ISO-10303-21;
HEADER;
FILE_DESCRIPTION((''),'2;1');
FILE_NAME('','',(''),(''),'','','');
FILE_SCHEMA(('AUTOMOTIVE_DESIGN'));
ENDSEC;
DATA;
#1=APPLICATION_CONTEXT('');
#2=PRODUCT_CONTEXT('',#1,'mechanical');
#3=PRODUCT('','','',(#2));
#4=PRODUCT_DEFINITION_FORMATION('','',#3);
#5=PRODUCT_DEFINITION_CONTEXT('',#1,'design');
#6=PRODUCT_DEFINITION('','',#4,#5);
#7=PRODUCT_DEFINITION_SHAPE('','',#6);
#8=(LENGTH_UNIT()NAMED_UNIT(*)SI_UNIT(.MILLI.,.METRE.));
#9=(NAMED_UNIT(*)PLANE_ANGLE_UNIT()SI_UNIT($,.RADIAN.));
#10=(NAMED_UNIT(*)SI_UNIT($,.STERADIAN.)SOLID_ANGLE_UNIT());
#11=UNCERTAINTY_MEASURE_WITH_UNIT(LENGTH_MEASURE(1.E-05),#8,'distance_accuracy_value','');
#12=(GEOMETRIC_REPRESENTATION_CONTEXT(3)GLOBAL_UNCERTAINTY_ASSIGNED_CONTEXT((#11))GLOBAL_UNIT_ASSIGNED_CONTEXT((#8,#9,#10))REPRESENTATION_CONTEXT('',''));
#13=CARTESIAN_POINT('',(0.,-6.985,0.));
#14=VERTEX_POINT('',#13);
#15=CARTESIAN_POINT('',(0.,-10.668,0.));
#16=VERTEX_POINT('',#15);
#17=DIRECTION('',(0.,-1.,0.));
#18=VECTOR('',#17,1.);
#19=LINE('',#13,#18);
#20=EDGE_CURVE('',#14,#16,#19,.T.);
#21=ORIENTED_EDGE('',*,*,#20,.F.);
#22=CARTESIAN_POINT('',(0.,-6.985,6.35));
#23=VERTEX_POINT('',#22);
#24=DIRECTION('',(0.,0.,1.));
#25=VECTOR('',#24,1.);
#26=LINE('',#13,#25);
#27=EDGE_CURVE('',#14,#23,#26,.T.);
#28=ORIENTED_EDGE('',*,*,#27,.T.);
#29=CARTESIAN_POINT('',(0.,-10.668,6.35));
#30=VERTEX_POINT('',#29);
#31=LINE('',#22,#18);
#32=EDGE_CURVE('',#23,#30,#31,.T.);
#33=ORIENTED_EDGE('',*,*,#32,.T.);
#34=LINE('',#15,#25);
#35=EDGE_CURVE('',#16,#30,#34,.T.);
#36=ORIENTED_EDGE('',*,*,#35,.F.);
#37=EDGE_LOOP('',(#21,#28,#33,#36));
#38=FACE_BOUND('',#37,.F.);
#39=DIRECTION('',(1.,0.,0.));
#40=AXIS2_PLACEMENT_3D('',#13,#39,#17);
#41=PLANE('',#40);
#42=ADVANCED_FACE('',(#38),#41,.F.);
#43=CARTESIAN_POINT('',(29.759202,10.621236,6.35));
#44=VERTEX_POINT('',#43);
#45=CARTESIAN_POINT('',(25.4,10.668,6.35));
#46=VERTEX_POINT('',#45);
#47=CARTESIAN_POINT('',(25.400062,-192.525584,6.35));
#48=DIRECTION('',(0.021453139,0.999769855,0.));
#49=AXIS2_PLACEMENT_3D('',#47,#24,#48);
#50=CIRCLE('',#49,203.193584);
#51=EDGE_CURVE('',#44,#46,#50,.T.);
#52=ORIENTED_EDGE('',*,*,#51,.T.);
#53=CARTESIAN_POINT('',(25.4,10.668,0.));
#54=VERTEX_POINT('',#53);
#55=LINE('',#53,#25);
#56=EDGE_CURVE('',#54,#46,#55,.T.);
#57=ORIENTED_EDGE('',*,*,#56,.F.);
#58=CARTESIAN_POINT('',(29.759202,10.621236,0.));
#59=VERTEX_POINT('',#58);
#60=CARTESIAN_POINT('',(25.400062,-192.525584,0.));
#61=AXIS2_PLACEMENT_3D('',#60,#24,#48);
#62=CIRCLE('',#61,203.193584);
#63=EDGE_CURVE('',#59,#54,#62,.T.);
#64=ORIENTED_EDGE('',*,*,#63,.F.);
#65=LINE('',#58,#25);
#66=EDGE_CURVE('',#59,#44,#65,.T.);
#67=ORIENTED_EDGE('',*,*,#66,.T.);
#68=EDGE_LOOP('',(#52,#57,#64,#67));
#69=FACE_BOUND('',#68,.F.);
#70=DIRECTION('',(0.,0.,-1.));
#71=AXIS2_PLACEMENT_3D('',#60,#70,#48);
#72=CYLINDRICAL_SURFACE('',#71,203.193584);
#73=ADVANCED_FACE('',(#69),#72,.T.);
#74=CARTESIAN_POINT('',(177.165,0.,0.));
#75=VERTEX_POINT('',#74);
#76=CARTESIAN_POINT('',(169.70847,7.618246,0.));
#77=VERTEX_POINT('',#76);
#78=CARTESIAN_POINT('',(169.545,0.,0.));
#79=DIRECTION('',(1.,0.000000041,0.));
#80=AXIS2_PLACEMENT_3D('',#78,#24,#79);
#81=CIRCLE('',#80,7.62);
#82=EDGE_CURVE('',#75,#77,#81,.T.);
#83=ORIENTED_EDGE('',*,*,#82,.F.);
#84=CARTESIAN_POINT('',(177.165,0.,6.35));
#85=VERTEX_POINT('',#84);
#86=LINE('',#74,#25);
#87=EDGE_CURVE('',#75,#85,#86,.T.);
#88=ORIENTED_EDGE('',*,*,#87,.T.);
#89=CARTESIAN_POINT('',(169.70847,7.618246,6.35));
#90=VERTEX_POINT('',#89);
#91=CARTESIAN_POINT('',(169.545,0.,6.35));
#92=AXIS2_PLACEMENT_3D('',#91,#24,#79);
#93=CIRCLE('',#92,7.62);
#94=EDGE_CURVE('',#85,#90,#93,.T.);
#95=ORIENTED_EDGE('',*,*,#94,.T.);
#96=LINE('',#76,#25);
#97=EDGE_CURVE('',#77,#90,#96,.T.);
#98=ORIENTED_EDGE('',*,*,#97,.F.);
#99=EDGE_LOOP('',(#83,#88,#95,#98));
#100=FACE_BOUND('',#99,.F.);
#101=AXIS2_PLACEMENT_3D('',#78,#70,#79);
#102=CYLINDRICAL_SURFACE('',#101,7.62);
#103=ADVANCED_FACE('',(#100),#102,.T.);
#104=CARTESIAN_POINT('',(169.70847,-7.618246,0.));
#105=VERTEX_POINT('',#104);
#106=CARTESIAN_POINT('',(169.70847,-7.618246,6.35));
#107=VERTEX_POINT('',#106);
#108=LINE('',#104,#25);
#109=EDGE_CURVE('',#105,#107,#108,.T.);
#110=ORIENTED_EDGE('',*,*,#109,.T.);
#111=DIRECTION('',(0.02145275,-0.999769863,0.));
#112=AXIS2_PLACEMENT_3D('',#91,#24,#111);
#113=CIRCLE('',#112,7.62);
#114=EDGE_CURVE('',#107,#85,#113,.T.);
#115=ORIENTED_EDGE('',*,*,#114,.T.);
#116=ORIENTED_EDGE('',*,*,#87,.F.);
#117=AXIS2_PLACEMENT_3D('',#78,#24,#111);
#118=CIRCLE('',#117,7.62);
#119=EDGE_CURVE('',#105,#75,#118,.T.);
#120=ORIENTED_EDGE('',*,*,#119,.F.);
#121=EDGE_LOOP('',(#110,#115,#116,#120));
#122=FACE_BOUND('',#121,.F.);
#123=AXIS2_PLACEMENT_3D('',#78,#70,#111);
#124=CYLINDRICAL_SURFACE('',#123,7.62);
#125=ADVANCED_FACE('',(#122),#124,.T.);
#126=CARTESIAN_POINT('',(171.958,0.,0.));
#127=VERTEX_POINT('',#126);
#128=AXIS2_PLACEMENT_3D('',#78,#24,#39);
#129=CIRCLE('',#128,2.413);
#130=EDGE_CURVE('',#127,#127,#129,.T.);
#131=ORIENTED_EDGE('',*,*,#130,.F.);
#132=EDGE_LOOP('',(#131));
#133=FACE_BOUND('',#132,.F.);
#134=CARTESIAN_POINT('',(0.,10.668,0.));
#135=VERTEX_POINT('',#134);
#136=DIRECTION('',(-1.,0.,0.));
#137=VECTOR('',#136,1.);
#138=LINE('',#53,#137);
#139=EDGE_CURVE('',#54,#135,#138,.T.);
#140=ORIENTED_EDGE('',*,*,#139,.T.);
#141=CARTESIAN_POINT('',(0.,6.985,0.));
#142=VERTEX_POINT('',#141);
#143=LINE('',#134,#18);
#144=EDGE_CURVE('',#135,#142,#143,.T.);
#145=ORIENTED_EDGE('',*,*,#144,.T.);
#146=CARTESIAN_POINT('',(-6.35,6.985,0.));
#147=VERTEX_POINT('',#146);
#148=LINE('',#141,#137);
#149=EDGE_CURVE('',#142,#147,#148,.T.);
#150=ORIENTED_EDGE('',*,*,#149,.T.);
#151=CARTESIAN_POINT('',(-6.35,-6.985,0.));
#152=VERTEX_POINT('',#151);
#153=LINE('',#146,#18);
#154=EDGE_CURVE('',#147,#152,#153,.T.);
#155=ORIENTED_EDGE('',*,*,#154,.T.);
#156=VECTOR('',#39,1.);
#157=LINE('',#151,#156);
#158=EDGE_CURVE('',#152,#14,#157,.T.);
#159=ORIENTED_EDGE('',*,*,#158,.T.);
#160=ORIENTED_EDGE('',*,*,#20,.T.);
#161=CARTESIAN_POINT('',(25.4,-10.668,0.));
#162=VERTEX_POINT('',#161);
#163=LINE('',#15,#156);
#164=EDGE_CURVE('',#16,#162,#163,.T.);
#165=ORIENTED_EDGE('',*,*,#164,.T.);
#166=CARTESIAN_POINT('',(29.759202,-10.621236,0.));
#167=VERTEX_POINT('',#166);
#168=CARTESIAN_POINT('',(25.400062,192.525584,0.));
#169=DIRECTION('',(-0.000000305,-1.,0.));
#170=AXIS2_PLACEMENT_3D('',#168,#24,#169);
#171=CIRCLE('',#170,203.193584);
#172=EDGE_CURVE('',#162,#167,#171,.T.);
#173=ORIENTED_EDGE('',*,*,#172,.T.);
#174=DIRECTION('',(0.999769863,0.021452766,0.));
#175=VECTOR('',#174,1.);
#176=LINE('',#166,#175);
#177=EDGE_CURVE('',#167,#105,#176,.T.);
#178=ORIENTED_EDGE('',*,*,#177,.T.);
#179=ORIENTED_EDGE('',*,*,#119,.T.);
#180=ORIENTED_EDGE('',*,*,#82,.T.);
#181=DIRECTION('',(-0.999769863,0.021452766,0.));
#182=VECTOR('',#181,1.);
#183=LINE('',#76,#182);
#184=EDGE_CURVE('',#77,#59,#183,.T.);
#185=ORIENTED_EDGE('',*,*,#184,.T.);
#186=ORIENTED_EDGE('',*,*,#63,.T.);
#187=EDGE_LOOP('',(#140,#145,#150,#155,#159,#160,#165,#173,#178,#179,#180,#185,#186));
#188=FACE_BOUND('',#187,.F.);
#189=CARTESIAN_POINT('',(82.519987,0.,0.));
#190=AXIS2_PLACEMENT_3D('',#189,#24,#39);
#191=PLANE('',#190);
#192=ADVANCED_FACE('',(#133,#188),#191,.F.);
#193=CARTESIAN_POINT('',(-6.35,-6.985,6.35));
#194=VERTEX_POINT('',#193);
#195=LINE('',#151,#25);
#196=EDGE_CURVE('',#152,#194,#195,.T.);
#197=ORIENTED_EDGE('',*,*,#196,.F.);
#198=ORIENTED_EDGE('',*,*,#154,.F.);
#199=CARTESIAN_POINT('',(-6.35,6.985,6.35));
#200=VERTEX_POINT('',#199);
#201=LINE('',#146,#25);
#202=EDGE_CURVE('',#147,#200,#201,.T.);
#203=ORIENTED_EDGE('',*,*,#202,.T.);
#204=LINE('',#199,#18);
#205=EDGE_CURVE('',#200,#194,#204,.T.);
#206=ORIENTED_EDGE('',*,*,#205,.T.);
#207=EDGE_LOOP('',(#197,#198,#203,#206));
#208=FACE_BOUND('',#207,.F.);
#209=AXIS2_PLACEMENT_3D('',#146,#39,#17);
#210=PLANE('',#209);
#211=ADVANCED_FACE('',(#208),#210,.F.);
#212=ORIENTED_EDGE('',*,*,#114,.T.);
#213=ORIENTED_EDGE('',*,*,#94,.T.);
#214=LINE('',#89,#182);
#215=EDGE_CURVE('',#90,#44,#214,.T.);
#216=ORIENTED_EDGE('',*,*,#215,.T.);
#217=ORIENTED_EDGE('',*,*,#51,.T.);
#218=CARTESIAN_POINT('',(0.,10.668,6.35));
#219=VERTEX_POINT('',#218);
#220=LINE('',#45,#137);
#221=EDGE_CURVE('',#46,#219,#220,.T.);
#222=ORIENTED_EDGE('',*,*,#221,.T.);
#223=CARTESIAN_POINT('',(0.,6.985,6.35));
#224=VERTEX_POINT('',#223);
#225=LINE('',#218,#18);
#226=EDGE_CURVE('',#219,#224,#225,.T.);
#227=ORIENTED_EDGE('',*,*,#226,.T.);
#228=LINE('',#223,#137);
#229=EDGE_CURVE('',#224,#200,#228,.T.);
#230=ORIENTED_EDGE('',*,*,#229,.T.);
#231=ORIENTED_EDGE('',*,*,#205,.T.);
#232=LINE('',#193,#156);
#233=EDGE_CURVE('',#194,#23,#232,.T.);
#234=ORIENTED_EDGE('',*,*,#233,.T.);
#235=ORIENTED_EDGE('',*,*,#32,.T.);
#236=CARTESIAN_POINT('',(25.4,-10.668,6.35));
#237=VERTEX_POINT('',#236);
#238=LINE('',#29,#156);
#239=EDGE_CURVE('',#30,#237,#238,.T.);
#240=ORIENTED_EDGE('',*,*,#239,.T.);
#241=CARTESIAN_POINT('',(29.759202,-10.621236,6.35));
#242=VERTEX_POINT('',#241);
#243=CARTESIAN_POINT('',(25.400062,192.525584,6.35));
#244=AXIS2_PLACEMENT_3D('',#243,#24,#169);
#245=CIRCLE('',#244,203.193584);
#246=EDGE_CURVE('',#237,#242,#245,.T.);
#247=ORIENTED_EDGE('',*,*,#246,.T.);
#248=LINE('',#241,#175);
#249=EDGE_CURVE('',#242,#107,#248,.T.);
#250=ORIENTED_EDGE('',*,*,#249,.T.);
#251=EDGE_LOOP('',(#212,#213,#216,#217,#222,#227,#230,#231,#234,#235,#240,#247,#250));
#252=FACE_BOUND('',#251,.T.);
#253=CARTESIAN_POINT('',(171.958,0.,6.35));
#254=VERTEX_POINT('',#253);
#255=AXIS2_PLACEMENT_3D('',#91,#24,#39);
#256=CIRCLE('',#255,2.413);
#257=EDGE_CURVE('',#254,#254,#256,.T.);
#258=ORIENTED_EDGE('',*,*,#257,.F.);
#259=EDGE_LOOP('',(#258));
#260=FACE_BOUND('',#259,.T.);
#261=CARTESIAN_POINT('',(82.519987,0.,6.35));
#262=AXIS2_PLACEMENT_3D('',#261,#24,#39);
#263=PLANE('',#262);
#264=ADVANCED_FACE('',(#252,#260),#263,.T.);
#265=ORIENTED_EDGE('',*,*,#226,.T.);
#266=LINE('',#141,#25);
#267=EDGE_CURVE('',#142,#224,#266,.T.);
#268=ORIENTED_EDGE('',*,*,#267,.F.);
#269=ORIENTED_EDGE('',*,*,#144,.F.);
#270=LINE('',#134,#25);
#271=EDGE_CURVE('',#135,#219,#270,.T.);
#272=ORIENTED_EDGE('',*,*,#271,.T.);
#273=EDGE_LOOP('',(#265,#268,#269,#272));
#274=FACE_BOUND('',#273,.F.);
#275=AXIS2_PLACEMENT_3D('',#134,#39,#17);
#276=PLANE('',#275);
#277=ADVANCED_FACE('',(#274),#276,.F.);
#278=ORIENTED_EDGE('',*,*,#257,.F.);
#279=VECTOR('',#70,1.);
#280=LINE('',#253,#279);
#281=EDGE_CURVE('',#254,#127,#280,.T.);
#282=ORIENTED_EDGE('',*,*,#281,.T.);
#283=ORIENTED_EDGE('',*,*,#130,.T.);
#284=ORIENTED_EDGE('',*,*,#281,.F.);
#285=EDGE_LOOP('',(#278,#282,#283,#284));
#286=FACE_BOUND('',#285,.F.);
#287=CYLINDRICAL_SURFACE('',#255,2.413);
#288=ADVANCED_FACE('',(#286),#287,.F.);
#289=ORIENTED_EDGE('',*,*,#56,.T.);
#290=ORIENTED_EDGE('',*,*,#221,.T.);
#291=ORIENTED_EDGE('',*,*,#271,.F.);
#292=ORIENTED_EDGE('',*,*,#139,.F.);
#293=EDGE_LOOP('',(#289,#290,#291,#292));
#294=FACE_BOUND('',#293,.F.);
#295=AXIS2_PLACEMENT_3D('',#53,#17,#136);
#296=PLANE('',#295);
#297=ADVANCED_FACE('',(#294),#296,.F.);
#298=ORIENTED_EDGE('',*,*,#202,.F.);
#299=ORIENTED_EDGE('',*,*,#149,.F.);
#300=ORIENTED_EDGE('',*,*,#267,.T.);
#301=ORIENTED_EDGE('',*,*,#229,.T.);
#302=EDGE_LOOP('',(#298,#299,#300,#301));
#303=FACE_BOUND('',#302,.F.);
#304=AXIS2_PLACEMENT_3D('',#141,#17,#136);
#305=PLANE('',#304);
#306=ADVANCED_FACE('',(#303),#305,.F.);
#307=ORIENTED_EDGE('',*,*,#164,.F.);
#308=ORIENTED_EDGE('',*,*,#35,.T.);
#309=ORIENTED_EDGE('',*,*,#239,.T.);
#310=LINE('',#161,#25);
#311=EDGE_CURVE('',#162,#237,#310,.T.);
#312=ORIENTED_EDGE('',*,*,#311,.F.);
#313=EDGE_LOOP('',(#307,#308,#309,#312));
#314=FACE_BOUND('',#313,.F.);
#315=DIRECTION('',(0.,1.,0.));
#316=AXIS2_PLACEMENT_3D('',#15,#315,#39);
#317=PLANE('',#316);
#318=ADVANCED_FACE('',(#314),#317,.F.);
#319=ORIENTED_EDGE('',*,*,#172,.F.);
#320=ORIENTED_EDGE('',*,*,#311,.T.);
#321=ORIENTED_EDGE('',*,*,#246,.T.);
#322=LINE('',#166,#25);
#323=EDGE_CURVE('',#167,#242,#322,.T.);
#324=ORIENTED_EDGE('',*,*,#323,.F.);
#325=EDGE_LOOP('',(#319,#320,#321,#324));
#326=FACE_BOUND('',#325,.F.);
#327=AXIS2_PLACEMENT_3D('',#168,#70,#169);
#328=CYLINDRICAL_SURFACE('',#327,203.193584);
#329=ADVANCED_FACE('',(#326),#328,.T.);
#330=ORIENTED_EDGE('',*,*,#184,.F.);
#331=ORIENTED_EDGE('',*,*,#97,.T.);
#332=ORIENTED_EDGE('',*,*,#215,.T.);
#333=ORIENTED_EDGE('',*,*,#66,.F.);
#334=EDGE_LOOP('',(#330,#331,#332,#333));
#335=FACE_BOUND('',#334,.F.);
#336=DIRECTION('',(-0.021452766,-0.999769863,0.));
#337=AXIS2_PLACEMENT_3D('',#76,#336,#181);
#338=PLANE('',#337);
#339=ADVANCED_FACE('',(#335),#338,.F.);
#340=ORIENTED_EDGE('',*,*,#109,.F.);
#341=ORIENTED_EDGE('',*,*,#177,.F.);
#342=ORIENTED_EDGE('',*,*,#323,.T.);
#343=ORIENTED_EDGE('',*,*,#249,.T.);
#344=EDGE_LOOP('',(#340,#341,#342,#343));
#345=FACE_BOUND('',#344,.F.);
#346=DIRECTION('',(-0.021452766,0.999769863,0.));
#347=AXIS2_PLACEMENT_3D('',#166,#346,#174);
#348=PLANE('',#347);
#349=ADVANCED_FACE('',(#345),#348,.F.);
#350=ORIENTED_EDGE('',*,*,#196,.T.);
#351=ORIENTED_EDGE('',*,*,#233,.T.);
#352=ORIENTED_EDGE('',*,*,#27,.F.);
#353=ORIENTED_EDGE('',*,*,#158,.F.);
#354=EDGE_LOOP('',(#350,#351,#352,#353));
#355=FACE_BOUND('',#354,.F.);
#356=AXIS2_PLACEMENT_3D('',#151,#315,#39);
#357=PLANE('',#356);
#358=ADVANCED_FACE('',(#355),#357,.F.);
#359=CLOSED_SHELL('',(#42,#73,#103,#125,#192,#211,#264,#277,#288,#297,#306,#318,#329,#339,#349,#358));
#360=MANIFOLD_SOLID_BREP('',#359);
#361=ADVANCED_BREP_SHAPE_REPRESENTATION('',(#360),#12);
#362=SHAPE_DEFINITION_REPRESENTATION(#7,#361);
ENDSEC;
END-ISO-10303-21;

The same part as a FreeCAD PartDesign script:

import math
import FreeCAD as App
import Part
import Sketcher
from FreeCAD import Vector
Q = App.Units.Quantity

doc = App.newDocument("Part")
body = doc.addObject("PartDesign::Body", "Body")

# Sketch on XY plane
sketch1 = doc.addObject("Sketcher::SketchObject", "Sketch")
body.addObject(sketch1)
sketch1.AttachmentSupport = (doc.XY_Plane, [""])
sketch1.MapMode = "FlatFace"
sketch1.addGeometry(Part.LineSegment(Vector(-6.35, 6.985, 0), Vector(-6.35, -6.985, 0)), False)
sketch1.addGeometry(Part.LineSegment(Vector(-6.35, -6.985, 0), Vector(0, -6.985, 0)), False)
sketch1.addGeometry(Part.LineSegment(Vector(0, -6.985, 0), Vector(0, -10.668, 0)), False)
sketch1.addGeometry(Part.LineSegment(Vector(0, -10.668, 0), Vector(25.4, -10.668, 0)), False)
sketch1.addGeometry(Part.ArcOfCircle(Part.Circle(Vector(25.400062, 192.525584, 0), Vector(0, 0, 1), 203.193584), math.radians(-90.000017), math.radians(-88.770731)), False)
sketch1.addGeometry(Part.LineSegment(Vector(29.759202, -10.621236, 0), Vector(169.70847, -7.618246, 0)), False)
sketch1.addGeometry(Part.ArcOfCircle(Part.Circle(Vector(169.545, 0, 0), Vector(0, 0, 1), 7.62), math.radians(-88.770754), math.radians(-0.000002)), False)
sketch1.addGeometry(Part.ArcOfCircle(Part.Circle(Vector(169.545, 0, 0), Vector(0, 0, 1), 7.62), math.radians(0.000002), math.radians(88.770754)), False)
sketch1.addGeometry(Part.LineSegment(Vector(169.70847, 7.618246, 0), Vector(29.759202, 10.621236, 0)), False)
sketch1.addGeometry(Part.ArcOfCircle(Part.Circle(Vector(25.400062, -192.525584, 0), Vector(0, 0, 1), 203.193584), math.radians(88.770731), math.radians(90.000017)), False)
sketch1.addGeometry(Part.LineSegment(Vector(25.4, 10.668, 0), Vector(0, 10.668, 0)), False)
sketch1.addGeometry(Part.LineSegment(Vector(0, 10.668, 0), Vector(0, 6.985, 0)), False)
sketch1.addGeometry(Part.LineSegment(Vector(0, 6.985, 0), Vector(-6.35, 6.985, 0)), False)
sketch1.addConstraint(Sketcher.Constraint("Coincident", 0, 2, 1, 1))
sketch1.addConstraint(Sketcher.Constraint("Coincident", 1, 2, 2, 1))
sketch1.addConstraint(Sketcher.Constraint("Coincident", 2, 2, 3, 1))
sketch1.addConstraint(Sketcher.Constraint("Coincident", 3, 2, 4, 1))
sketch1.addConstraint(Sketcher.Constraint("Coincident", 4, 2, 5, 1))
sketch1.addConstraint(Sketcher.Constraint("Coincident", 5, 2, 6, 1))
sketch1.addConstraint(Sketcher.Constraint("Coincident", 6, 2, 7, 1))
sketch1.addConstraint(Sketcher.Constraint("Coincident", 7, 2, 8, 1))
sketch1.addConstraint(Sketcher.Constraint("Coincident", 8, 2, 9, 1))
sketch1.addConstraint(Sketcher.Constraint("Coincident", 9, 2, 10, 1))
sketch1.addConstraint(Sketcher.Constraint("Coincident", 10, 2, 11, 1))
sketch1.addConstraint(Sketcher.Constraint("Coincident", 11, 2, 12, 1))
sketch1.addConstraint(Sketcher.Constraint("Coincident", 12, 2, 0, 1))
sketch1.addConstraint(Sketcher.Constraint("Vertical", 0))
sketch1.addConstraint(Sketcher.Constraint("Horizontal", 1))
sketch1.addConstraint(Sketcher.Constraint("Vertical", 2))
sketch1.addConstraint(Sketcher.Constraint("Horizontal", 3))
sketch1.addConstraint(Sketcher.Constraint("Horizontal", 10))
sketch1.addConstraint(Sketcher.Constraint("Vertical", 11))
sketch1.addConstraint(Sketcher.Constraint("Horizontal", 12))
sketch1.addConstraint(Sketcher.Constraint("Coincident", 7, 3, 6, 3))
sketch1.addConstraint(Sketcher.Constraint("PointOnObject", 6, 3, -1))
sketch1.addConstraint(Sketcher.Constraint("PointOnObject", 1, 2, -2))
sketch1.addConstraint(Sketcher.Constraint("PointOnObject", 6, 2, -1))
sketch1.addConstraint(Sketcher.Constraint("PointOnObject", 10, 2, -2))
sketch1.addConstraint(Sketcher.Constraint("Radius", 6, Q("0.3 in")))
sketch1.addConstraint(Sketcher.Constraint("DistanceX", 3, 1, 3, 2, Q("1 in")))
sketch1.addConstraint(Sketcher.Constraint("DistanceX", 10, 2, 10, 1, Q("1 in")))
sketch1.addConstraint(Sketcher.Constraint("DistanceX", 1, 1, 1, 2, Q("0.25 in")))
sketch1.addConstraint(Sketcher.Constraint("DistanceY", 0, 2, 0, 1, Q("0.55 in")))
sketch1.addConstraint(Sketcher.Constraint("DistanceY", 2, 2, 2, 1, Q("0.145 in")))
sketch1.addConstraint(Sketcher.Constraint("DistanceY", 11, 2, 11, 1, Q("0.145 in")))
sketch1.addConstraint(Sketcher.Constraint("DistanceY", 2, 2, -1, 1, Q("0.42 in")))
sketch1.addConstraint(Sketcher.Constraint("DistanceX", -1, 1, 6, 3, Q("6.675 in")))
sketch1.addConstraint(Sketcher.Constraint("Radius", 4, Q("203.193584 mm")))
sketch1.addConstraint(Sketcher.Constraint("Radius", 9, Q("203.193584 mm")))
sketch1.addConstraint(Sketcher.Constraint("DistanceX", -1, 1, 4, 2, Q("29.759202 mm")))
sketch1.addConstraint(Sketcher.Constraint("DistanceX", -1, 1, 8, 2, Q("29.759202 mm")))
sketch1.addConstraint(Sketcher.Constraint("DistanceX", -1, 1, 4, 3, Q("25.400062 mm")))
sketch1.addConstraint(Sketcher.Constraint("DistanceX", -1, 1, 9, 3, Q("25.400062 mm")))
sketch1.addConstraint(Sketcher.Constraint("DistanceX", -1, 1, 5, 2, Q("169.70847 mm")))
sketch1.addConstraint(Sketcher.Constraint("DistanceX", -1, 1, 7, 2, Q("169.70847 mm")))
pad1 = doc.addObject("PartDesign::Pad", "Pad")
body.addObject(pad1)
pad1.Profile = sketch1
pad1.Length = Q("0.25 in")

# Sketch on XY plane
sketch2 = doc.addObject("Sketcher::SketchObject", "Sketch001")
body.addObject(sketch2)
sketch2.AttachmentSupport = (doc.XY_Plane, [""])
sketch2.MapMode = "FlatFace"
sketch2.AttachmentOffset = App.Placement(Vector(0, 0, 0.25 * 25.4), App.Rotation())
sketch2.addGeometry(Part.Circle(Vector(169.545, 0, 0), Vector(0, 0, 1), 2.413), False)
sketch2.addConstraint(Sketcher.Constraint("PointOnObject", 0, 3, -1))
sketch2.addConstraint(Sketcher.Constraint("Diameter", 0, Q("0.19 in")))
sketch2.addConstraint(Sketcher.Constraint("DistanceX", -1, 1, 0, 3, Q("6.675 in")))
pocket1 = doc.addObject("PartDesign::Pocket", "Pocket")
body.addObject(pocket1)
pocket1.Profile = sketch2
pocket1.Type = "ThroughAll"

doc.recompute()
